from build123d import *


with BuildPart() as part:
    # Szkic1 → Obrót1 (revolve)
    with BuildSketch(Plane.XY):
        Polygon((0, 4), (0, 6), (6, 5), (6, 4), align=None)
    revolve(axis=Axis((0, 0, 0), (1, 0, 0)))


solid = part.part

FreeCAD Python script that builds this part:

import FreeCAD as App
import Part
import Sketcher
from FreeCAD import Vector

doc = App.newDocument("Part")
body = doc.addObject("PartDesign::Body", "Body")

sketch1 = doc.addObject("Sketcher::SketchObject", "Sketch")
body.addObject(sketch1)
sketch1.AttachmentSupport = (doc.XY_Plane, [""])
sketch1.MapMode = "FlatFace"
sketch1.addGeometry(Part.LineSegment(Vector(0, 6, 0), Vector(0, 4, 0)), False)
sketch1.addGeometry(Part.LineSegment(Vector(0, 4, 0), Vector(6, 4, 0)), False)
sketch1.addGeometry(Part.LineSegment(Vector(6, 4, 0), Vector(6, 5, 0)), False)
sketch1.addGeometry(Part.LineSegment(Vector(6, 5, 0), Vector(0, 6, 0)), False)
sketch1.addConstraint(Sketcher.Constraint("Coincident", 0, 2, 1, 1))
sketch1.addConstraint(Sketcher.Constraint("Coincident", 1, 2, 2, 1))
sketch1.addConstraint(Sketcher.Constraint("Coincident", 2, 2, 3, 1))
sketch1.addConstraint(Sketcher.Constraint("Coincident", 3, 2, 0, 1))
sketch1.addConstraint(Sketcher.Constraint("Vertical", 0))
sketch1.addConstraint(Sketcher.Constraint("Horizontal", 1))
sketch1.addConstraint(Sketcher.Constraint("Vertical", 2))
sketch1.addConstraint(Sketcher.Constraint("PointOnObject", 0, 2, -2))
sketch1.addConstraint(Sketcher.Constraint("DistanceX", 1, 1, 1, 2, 6.0))
sketch1.addConstraint(Sketcher.Constraint("DistanceY", 0, 2, 0, 1, 2.0))
sketch1.addConstraint(Sketcher.Constraint("DistanceY", 2, 1, 2, 2, 1.0))
sketch1.addConstraint(Sketcher.Constraint("DistanceY", -1, 1, 0, 2, 4.0))
revolution = doc.addObject("PartDesign::Revolution", "Revolution")
body.addObject(revolution)
revolution.Profile = sketch1
revolution.ReferenceAxis = (sketch1, ["H_Axis"])
revolution.Angle = 360

doc.recompute()
